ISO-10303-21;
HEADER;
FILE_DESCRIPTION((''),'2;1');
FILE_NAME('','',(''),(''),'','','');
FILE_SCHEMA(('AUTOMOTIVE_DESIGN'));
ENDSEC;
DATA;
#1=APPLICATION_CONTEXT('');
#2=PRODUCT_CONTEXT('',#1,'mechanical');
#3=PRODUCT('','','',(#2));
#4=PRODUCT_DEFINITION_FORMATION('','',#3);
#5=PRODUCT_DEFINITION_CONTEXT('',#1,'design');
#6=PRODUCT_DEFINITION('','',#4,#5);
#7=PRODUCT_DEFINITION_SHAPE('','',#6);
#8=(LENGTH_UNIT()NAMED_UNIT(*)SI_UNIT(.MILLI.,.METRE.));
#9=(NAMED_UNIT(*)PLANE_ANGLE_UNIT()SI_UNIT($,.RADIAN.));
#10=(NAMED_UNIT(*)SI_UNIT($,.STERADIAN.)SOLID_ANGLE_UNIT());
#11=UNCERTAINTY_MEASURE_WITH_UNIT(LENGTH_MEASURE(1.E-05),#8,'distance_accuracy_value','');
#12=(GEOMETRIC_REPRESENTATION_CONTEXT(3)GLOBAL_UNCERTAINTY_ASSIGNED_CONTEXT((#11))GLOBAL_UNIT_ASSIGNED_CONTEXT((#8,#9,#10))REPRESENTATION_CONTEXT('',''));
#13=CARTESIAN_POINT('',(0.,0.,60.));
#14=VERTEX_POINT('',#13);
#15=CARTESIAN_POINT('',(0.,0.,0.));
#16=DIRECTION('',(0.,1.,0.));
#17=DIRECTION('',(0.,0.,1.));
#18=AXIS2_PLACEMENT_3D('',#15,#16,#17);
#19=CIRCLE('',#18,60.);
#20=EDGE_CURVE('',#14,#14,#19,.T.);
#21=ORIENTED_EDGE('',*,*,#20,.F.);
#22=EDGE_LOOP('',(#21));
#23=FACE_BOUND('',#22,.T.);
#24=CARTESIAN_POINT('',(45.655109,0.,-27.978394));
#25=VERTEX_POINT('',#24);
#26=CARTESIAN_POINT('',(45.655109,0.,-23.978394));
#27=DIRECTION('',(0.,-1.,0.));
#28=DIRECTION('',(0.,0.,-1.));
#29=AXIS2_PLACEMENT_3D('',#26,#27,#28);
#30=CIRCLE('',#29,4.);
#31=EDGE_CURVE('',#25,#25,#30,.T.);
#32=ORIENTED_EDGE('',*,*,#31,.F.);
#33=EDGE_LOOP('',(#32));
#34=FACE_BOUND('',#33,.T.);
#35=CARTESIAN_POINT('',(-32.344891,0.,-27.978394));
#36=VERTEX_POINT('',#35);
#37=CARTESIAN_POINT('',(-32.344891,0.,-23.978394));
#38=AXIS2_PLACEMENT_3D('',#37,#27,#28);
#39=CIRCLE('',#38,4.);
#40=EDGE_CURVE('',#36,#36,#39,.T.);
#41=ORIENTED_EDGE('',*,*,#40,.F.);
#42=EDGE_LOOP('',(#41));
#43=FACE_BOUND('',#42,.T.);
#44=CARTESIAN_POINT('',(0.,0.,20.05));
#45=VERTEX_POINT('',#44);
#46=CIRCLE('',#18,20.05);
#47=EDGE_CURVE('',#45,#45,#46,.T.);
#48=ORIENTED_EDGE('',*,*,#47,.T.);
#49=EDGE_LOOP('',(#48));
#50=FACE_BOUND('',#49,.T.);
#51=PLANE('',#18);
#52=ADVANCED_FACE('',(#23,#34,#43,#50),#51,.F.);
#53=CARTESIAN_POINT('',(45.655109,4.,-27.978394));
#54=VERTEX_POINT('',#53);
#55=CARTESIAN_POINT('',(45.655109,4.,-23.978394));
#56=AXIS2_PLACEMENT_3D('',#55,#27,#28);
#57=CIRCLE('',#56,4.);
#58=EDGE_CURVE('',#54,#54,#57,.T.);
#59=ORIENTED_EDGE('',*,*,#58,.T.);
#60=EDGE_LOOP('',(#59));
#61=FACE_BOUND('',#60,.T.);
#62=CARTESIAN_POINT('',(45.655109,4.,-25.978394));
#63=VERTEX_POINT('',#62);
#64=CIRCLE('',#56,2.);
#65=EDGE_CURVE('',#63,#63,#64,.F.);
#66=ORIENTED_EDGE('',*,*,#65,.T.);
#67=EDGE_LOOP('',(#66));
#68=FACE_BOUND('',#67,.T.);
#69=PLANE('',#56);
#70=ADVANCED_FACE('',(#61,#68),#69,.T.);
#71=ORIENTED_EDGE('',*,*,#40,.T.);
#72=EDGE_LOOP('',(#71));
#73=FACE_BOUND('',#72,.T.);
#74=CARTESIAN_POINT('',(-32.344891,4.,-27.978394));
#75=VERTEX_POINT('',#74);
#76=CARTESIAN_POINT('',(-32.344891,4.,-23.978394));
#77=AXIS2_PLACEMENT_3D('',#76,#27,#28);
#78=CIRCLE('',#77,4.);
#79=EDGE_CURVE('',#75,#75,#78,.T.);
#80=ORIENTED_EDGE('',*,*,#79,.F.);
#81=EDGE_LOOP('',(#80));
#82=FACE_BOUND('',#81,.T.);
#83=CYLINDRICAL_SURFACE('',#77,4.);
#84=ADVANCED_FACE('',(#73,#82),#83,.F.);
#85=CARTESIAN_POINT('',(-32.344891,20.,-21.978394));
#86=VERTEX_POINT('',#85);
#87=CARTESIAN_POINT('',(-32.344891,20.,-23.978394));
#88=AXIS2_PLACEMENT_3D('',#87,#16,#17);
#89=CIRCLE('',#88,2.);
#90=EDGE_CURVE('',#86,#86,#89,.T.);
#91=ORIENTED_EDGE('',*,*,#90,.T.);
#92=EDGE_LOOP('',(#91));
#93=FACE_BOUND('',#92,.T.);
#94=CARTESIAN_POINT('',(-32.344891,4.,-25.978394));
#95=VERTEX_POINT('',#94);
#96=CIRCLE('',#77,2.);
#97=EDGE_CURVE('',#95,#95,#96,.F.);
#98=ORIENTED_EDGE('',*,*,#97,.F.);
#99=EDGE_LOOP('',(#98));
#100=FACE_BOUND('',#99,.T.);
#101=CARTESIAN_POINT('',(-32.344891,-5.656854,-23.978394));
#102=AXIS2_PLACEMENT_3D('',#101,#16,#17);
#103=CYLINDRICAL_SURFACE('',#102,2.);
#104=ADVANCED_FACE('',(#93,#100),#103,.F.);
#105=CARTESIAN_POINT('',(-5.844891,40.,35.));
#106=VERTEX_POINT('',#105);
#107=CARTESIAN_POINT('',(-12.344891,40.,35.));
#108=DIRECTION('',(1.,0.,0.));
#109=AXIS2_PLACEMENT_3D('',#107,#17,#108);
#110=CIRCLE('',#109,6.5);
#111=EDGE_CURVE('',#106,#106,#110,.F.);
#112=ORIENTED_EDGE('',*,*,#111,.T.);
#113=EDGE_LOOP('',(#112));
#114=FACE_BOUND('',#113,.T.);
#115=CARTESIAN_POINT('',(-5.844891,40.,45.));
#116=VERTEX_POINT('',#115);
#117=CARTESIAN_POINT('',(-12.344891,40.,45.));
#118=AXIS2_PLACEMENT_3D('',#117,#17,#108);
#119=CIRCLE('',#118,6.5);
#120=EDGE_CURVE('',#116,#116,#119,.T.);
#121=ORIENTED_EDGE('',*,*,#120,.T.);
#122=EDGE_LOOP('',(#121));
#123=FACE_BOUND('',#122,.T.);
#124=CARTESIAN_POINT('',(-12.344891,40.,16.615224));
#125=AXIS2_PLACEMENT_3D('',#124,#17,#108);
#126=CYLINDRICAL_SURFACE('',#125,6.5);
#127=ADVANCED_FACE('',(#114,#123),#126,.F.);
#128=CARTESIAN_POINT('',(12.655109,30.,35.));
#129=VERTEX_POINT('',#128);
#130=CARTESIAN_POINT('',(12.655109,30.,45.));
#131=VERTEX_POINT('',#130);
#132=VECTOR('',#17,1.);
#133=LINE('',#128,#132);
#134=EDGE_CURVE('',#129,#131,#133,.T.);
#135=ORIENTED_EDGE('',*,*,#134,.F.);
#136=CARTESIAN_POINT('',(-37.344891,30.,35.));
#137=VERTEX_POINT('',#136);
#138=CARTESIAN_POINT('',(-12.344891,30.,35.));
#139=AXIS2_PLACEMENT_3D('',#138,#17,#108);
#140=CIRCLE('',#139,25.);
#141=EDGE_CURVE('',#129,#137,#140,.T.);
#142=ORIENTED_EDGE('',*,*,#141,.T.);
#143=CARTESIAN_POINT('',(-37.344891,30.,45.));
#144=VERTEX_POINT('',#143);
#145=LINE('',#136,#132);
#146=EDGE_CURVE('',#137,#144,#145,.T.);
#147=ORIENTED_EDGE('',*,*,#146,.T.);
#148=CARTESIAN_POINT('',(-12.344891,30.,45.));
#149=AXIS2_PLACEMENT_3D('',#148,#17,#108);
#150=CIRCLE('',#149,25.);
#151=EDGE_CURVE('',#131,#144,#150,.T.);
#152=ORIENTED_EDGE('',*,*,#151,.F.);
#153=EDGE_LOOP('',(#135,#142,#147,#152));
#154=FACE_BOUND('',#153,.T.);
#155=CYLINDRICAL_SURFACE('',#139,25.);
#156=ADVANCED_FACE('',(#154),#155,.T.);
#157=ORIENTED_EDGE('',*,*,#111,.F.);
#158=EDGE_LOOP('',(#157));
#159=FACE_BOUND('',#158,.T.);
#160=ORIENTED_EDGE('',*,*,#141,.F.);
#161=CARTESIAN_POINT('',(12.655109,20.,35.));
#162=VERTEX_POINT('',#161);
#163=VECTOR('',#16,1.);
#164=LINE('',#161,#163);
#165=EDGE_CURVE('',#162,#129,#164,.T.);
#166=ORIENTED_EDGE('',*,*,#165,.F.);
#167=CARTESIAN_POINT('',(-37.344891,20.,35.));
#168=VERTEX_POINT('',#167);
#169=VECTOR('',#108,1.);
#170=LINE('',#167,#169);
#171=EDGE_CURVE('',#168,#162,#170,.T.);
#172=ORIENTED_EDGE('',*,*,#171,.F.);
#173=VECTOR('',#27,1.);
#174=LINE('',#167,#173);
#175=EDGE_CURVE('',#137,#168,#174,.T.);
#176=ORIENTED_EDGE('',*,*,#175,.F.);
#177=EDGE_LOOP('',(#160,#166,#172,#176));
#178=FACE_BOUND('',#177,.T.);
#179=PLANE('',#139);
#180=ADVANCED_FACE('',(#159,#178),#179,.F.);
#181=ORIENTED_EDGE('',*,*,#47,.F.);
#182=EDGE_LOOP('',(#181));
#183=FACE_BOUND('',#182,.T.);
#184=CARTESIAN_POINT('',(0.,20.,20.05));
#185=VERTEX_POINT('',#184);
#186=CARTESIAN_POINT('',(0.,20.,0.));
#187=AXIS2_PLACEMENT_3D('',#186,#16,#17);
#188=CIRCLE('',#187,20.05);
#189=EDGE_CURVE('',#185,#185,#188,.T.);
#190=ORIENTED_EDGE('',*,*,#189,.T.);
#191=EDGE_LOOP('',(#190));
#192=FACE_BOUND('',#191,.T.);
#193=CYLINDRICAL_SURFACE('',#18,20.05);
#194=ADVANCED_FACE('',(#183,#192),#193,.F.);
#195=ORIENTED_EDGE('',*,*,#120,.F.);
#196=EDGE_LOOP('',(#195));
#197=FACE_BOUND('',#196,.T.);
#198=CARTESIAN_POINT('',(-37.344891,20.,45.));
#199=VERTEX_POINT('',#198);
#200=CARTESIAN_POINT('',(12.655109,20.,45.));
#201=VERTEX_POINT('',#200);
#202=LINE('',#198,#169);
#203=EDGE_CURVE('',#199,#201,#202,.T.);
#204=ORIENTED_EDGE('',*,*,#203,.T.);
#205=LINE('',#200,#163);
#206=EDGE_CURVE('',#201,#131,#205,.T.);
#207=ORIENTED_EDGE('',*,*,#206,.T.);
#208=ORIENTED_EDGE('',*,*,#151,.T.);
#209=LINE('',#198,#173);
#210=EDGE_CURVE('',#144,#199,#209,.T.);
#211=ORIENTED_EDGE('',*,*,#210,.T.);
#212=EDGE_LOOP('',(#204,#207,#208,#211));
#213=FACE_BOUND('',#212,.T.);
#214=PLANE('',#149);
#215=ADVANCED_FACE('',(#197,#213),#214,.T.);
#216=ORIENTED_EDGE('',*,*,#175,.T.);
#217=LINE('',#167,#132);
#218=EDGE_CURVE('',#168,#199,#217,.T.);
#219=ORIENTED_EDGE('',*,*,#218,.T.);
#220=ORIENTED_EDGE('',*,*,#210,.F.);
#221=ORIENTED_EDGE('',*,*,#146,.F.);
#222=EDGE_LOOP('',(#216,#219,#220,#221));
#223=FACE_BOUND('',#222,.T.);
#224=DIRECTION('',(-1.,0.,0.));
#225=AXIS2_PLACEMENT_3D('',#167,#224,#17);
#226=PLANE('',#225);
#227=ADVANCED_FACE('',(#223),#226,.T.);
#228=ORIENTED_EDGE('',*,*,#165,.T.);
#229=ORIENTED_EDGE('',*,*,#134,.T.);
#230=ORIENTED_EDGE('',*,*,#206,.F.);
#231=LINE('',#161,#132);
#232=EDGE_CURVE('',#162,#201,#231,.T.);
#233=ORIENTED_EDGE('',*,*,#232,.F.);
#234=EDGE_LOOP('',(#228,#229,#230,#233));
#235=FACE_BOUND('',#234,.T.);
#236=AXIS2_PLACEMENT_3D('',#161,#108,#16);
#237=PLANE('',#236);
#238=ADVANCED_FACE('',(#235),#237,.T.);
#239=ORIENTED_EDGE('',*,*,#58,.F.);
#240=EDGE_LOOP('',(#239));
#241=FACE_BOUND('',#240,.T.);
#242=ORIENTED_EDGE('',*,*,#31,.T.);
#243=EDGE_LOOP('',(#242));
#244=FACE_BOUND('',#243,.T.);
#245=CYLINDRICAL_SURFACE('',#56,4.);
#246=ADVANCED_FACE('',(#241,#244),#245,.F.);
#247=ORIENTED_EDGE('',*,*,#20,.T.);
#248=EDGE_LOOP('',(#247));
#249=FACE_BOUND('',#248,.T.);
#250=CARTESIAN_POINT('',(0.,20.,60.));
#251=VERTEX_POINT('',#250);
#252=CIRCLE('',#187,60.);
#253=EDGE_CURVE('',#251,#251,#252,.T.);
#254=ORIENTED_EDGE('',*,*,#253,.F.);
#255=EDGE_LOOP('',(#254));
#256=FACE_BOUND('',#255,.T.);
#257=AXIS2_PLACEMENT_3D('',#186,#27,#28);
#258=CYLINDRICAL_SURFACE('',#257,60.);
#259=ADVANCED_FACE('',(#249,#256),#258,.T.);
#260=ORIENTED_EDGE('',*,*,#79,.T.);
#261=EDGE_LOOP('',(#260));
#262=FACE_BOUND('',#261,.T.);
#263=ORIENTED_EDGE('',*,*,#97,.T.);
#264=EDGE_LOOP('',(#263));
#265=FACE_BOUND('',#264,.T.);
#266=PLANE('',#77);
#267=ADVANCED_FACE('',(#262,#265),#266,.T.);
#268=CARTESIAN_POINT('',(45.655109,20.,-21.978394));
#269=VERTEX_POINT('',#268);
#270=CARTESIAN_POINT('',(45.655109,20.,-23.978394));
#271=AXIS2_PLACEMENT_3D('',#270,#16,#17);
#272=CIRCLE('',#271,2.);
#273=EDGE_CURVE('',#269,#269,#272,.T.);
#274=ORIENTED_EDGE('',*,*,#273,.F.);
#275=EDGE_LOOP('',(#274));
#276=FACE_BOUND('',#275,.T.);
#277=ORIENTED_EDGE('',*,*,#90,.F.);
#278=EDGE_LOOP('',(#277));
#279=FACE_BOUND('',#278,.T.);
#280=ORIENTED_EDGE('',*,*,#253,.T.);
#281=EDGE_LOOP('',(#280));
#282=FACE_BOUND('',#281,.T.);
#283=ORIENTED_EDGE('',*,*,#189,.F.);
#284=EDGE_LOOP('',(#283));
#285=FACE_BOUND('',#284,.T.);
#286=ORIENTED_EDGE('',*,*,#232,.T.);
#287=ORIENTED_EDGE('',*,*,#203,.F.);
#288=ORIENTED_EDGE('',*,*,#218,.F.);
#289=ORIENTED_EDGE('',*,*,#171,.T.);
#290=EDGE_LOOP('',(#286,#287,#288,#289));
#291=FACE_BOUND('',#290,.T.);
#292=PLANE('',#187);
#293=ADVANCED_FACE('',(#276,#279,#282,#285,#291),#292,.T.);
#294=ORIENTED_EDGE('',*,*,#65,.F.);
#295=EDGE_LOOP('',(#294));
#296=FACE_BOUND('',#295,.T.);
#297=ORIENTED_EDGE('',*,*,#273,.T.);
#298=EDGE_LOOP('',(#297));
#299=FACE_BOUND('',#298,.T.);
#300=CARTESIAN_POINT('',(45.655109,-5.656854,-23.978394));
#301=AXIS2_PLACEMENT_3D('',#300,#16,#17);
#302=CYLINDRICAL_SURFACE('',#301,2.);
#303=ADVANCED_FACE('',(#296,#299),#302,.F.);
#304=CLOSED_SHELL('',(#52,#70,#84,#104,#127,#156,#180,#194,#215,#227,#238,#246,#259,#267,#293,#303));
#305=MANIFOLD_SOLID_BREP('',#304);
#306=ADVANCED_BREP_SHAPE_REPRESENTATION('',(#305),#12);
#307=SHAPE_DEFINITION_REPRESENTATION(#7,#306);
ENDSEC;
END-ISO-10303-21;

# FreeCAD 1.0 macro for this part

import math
import FreeCAD as App
import Part
import Sketcher

doc = App.newDocument("Part")
body = doc.addObject("PartDesign::Body", "Body")

# Sketch on XZ plane
sketch1 = body.newObject("Sketcher::SketchObject", "Sketch")
sketch1.AttachmentSupport = (doc.getObject("XZ_Plane"), [""])
sketch1.MapMode = "FlatFace"
sketch1.addGeometry(Part.Circle(App.Vector(0, 0, 0), App.Vector(0, 0, 1), 60), False)
sketch1.addConstraint([
    Sketcher.Constraint("Coincident", 0, 3, -1, 1),
    Sketcher.Constraint("Diameter", 0, 120.0),
])
pad1 = body.newObject("PartDesign::Pad", "Pad")
pad1.Profile = sketch1
pad1.Length = 20
pad1.Reversed = True

# Sketch on XY plane
sketch2 = body.newObject("Sketcher::SketchObject", "Sketch001")
sketch2.AttachmentSupport = (doc.getObject("XY_Plane"), [""])
sketch2.MapMode = "FlatFace"
sketch2.AttachmentOffset = App.Placement(App.Vector(0, 0, 45), App.Rotation())
sketch2.addGeometry([
    Part.LineSegment(App.Vector(-37, 30, 0), App.Vector(-37, 20, 0)),
    Part.LineSegment(App.Vector(-37, 20, 0), App.Vector(13, 20, 0)),
    Part.LineSegment(App.Vector(13, 20, 0), App.Vector(13, 30, 0)),
    Part.ArcOfCircle(Part.Circle(App.Vector(-12, 30, 0), App.Vector(0, 0, 1), 25), math.radians(0), math.radians(180)),
], False)
sketch2.addConstraint([
    Sketcher.Constraint("Coincident", 0, 2, 1, 1),
    Sketcher.Constraint("Coincident", 1, 2, 2, 1),
    Sketcher.Constraint("Tangent", 2, 2, 3, 1),
    Sketcher.Constraint("Tangent", 3, 2, 0, 1),
    Sketcher.Constraint("Vertical", 0),
    Sketcher.Constraint("Horizontal", 1),
    Sketcher.Constraint("Vertical", 2),
    Sketcher.Constraint("Radius", 3, 25.0),
    Sketcher.Constraint("DistanceY", 0, 2, 0, 1, 10.0),
    Sketcher.Constraint("DistanceY", -1, 1, 3, 3, 30.0),
    Sketcher.Constraint("DistanceX", 3, 3, -1, 1, 12.344891),
])
pad2 = body.newObject("PartDesign::Pad", "Pad001")
pad2.Profile = sketch2
pad2.Length = 10
pad2.Reversed = True

# Sketch on XZ plane
sketch3 = body.newObject("Sketcher::SketchObject", "Sketch002")
sketch3.AttachmentSupport = (doc.getObject("XZ_Plane"), [""])
sketch3.MapMode = "FlatFace"
sketch3.AttachmentOffset = App.Placement(App.Vector(0, 0, -20), App.Rotation())
sketch3.addGeometry(Part.Circle(App.Vector(0, 0, 0), App.Vector(0, 0, 1), 20), False)
sketch3.addConstraint([
    Sketcher.Constraint("Coincident", 0, 3, -1, 1),
    Sketcher.Constraint("Diameter", 0, 40.1),
])
pocket1 = body.newObject("PartDesign::Pocket", "Pocket")
pocket1.Profile = sketch3
pocket1.Type = "ThroughAll"
pocket1.Reversed = True

# Sketch on XY plane
sketch4 = body.newObject("Sketcher::SketchObject", "Sketch003")
sketch4.AttachmentSupport = (doc.getObject("XY_Plane"), [""])
sketch4.MapMode = "FlatFace"
sketch4.AttachmentOffset = App.Placement(App.Vector(0, 0, 45), App.Rotation())
sketch4.addGeometry(Part.Circle(App.Vector(-12, 40, 0), App.Vector(0, 0, 1), 6), False)
sketch4.addConstraint([
    Sketcher.Constraint("Diameter", 0, 13.0),
    Sketcher.Constraint("DistanceY", -1, 1, 0, 3, 40.0),
    Sketcher.Constraint("DistanceX", 0, 3, -1, 1, 12.344891),
])
pocket2 = body.newObject("PartDesign::Pocket", "Pocket001")
pocket2.Profile = sketch4
pocket2.Length = 10

# Sketch on XZ plane
sketch5 = body.newObject("Sketcher::SketchObject", "Sketch004")
sketch5.AttachmentSupport = (doc.getObject("XZ_Plane"), [""])
sketch5.MapMode = "FlatFace"
sketch5.AttachmentOffset = App.Placement(App.Vector(0, 0, -20), App.Rotation())
sketch5.addGeometry([
    Part.Circle(App.Vector(45.7, -24, 0), App.Vector(0, 0, 1), 2),
    Part.Circle(App.Vector(-32.3, -24, 0), App.Vector(0, 0, 1), 2),
], False)
sketch5.addConstraint([
    Sketcher.Constraint("Equal", 0, 1),
    Sketcher.Constraint("Horizontal", 0, 3, 1, 3),
    Sketcher.Constraint("Diameter", 0, 4.0),
    Sketcher.Constraint("DistanceX", 1, 3, 0, 3, 78.0),
    Sketcher.Constraint("DistanceX", -1, 1, 0, 3, 45.655109),
    Sketcher.Constraint("DistanceY", 0, 3, -1, 1, 23.978394),
])
pocket3 = body.newObject("PartDesign::Pocket", "Pocket002")
pocket3.Profile = sketch5
pocket3.Length = 20
pocket3.Reversed = True

# Sketch on XZ plane
sketch6 = body.newObject("Sketcher::SketchObject", "Sketch005")
sketch6.AttachmentSupport = (doc.getObject("XZ_Plane"), [""])
sketch6.MapMode = "FlatFace"
sketch6.addGeometry([
    Part.Circle(App.Vector(45.7, -24, 0), App.Vector(0, 0, 1), 4),
    Part.Circle(App.Vector(-32.3, -24, 0), App.Vector(0, 0, 1), 4),
], False)
sketch6.addConstraint([
    Sketcher.Constraint("Equal", 0, 1),
    Sketcher.Constraint("Horizontal", 0, 3, 1, 3),
    Sketcher.Constraint("Diameter", 0, 8.0),
    Sketcher.Constraint("DistanceX", 1, 3, 0, 3, 78.0),
    Sketcher.Constraint("DistanceX", -1, 1, 0, 3, 45.655109),
    Sketcher.Constraint("DistanceY", 0, 3, -1, 1, 23.978394),
])
pocket4 = body.newObject("PartDesign::Pocket", "Pocket003")
pocket4.Profile = sketch6
pocket4.Length = 4

doc.recompute()
